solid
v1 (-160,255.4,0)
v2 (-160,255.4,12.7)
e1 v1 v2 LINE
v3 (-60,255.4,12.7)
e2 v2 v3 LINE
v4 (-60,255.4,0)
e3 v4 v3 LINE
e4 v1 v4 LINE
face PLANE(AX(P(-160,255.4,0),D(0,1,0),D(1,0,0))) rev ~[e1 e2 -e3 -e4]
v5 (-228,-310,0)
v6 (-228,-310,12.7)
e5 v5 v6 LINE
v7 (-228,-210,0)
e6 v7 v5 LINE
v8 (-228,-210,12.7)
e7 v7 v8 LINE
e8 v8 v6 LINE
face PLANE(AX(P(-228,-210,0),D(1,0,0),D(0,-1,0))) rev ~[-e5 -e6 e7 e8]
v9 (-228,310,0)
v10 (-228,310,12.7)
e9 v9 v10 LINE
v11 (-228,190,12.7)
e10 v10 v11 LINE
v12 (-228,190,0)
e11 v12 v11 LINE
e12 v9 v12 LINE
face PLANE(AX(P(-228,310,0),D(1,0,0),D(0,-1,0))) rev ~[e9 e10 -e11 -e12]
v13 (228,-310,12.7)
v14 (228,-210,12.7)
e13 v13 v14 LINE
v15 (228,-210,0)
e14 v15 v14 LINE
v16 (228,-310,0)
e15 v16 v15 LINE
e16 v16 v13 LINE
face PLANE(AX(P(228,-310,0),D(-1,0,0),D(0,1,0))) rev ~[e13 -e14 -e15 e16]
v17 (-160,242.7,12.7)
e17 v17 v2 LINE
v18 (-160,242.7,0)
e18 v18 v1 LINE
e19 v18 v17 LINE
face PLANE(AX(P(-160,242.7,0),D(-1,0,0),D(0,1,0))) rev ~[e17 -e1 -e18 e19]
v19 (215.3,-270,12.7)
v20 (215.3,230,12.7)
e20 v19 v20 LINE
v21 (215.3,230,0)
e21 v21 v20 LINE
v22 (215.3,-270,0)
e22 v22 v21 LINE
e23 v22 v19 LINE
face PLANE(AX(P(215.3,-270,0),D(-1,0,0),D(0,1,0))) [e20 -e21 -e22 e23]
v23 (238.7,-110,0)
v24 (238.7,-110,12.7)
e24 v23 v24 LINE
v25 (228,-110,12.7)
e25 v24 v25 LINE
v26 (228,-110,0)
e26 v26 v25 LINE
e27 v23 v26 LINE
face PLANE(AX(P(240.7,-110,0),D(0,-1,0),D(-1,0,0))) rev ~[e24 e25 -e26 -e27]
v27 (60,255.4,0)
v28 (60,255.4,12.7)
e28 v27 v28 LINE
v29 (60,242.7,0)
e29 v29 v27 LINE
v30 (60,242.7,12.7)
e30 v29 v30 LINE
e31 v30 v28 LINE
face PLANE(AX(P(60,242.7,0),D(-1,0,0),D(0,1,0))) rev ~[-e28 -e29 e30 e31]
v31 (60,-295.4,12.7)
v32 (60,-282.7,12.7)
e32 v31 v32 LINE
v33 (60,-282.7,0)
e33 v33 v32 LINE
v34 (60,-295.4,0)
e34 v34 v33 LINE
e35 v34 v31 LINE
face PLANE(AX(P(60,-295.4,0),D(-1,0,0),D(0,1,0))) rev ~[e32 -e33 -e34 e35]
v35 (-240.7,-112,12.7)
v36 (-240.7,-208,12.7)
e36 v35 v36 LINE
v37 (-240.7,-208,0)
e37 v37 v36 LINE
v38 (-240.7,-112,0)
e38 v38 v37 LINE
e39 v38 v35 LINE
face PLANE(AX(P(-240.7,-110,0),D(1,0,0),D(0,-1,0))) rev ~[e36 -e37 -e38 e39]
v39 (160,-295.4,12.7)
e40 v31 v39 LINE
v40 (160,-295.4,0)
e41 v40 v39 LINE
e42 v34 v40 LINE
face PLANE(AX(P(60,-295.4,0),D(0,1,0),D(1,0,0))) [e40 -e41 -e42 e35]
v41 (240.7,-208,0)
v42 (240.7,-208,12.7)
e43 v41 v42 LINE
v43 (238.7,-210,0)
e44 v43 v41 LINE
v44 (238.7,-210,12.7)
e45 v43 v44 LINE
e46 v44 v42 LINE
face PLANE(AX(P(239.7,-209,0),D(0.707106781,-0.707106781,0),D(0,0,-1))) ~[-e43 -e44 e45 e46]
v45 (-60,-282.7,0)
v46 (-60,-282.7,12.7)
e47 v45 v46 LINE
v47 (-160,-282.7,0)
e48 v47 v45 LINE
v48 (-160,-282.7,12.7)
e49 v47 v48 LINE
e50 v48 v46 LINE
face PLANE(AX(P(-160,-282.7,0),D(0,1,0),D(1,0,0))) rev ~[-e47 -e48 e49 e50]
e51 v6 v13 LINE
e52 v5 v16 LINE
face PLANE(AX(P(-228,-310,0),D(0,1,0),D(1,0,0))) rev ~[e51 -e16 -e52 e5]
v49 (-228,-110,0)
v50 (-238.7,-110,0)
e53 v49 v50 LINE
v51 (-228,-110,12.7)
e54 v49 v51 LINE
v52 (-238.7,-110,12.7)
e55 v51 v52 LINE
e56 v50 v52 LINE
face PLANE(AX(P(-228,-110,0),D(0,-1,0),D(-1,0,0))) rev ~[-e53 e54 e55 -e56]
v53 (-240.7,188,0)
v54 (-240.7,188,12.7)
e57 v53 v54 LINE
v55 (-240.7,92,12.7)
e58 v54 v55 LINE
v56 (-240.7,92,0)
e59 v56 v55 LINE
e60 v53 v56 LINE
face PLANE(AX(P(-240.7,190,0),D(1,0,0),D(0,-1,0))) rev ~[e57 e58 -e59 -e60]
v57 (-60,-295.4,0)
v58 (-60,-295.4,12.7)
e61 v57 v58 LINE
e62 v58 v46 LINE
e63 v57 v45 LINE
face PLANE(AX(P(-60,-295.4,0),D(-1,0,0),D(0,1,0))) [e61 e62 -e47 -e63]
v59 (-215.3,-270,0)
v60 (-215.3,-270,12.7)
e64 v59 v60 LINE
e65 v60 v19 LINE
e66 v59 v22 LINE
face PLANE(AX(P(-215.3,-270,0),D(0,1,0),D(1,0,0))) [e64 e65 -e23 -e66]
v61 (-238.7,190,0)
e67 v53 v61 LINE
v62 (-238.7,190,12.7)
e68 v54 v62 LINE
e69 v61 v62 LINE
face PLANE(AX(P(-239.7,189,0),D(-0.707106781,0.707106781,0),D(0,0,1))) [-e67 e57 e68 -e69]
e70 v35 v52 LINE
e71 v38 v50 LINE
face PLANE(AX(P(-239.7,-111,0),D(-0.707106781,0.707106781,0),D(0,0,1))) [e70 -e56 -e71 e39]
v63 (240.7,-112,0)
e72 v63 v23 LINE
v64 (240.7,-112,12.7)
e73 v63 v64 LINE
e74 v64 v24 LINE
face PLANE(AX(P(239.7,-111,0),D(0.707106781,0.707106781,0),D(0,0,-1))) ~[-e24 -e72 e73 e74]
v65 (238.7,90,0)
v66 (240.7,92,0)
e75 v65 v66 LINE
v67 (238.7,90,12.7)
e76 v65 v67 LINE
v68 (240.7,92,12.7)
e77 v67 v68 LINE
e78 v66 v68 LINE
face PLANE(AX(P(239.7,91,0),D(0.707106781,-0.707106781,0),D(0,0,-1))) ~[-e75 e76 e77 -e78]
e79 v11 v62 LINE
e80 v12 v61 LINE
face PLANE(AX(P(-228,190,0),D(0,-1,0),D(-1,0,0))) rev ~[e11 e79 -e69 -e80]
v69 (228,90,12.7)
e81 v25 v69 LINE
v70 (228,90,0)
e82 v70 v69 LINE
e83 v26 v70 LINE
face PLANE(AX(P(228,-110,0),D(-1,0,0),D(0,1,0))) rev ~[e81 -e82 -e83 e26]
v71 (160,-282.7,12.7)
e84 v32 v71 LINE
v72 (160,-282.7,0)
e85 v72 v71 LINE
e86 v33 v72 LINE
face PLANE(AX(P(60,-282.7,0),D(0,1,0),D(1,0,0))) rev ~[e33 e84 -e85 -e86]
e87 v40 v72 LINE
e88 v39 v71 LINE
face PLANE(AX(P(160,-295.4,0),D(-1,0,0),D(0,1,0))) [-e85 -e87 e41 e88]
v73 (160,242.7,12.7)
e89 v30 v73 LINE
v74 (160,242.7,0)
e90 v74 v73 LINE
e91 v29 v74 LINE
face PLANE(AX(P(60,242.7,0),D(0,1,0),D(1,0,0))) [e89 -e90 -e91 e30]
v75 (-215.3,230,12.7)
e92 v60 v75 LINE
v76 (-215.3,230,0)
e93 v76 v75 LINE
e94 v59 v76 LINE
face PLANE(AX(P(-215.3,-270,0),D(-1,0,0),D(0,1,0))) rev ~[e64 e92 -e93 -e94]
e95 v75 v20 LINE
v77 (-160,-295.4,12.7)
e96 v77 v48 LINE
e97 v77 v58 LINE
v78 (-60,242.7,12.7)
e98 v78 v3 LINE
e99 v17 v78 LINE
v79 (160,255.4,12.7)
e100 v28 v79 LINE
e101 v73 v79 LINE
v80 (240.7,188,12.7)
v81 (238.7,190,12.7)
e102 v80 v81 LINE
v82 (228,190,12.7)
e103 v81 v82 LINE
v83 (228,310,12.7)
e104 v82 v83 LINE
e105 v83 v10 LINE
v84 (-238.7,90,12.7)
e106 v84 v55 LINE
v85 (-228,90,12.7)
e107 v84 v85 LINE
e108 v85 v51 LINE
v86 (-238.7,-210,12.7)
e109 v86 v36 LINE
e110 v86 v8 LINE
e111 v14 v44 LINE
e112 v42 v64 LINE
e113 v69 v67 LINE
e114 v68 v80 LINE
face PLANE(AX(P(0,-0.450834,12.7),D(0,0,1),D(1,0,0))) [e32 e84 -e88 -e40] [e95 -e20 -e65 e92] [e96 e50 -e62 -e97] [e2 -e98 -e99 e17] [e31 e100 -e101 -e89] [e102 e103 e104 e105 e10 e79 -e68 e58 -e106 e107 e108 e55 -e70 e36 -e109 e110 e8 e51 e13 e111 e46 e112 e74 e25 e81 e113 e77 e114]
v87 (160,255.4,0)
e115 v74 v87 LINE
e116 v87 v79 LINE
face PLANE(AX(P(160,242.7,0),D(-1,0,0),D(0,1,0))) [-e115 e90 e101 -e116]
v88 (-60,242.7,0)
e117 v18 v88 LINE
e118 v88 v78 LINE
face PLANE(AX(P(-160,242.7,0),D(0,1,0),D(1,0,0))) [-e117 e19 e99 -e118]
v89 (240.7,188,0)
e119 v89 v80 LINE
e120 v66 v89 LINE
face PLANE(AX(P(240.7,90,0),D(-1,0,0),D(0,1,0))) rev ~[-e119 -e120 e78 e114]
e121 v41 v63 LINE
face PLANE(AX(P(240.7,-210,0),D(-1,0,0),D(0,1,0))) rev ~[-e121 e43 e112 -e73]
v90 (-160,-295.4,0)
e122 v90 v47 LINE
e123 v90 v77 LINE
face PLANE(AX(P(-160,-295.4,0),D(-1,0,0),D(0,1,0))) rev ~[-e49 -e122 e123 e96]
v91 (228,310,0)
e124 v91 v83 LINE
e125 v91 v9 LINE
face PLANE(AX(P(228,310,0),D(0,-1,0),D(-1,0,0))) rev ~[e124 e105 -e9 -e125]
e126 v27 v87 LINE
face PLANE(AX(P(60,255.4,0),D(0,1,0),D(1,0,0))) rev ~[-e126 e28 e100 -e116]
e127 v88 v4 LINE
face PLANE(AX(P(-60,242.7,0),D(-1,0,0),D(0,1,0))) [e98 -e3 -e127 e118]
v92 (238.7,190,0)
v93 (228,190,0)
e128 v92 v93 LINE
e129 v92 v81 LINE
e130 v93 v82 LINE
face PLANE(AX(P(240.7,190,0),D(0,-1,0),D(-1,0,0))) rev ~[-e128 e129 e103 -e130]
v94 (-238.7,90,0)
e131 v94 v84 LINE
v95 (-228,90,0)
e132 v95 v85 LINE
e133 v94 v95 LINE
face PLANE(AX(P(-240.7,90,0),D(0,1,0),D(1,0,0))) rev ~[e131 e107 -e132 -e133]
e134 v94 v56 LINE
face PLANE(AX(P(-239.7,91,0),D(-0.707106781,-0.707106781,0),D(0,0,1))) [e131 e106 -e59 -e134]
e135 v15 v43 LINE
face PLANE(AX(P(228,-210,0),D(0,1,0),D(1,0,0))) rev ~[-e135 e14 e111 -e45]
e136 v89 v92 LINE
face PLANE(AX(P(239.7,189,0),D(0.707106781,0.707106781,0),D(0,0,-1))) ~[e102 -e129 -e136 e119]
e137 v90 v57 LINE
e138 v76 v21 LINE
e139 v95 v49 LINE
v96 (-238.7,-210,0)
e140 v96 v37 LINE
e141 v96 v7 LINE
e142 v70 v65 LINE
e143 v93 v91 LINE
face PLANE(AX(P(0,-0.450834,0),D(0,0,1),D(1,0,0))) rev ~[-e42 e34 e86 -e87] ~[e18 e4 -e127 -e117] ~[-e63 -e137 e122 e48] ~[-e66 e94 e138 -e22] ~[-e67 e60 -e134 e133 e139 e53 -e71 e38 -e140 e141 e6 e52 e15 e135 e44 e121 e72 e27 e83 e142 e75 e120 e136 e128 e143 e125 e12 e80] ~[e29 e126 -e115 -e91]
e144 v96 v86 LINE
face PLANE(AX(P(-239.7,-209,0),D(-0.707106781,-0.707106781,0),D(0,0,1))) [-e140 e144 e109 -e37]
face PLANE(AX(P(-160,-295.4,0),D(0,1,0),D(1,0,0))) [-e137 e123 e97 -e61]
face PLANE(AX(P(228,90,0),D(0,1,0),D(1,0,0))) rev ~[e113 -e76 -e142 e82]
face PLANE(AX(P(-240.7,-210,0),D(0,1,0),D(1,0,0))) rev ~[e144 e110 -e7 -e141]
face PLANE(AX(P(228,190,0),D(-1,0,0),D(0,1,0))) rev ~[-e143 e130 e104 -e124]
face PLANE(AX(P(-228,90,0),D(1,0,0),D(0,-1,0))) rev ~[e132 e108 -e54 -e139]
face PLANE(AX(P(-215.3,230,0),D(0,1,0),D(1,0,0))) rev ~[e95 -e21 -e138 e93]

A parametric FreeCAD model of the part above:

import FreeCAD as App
import Part
import Sketcher

V = App.Vector


def edges_at(feature, points):
    """Names of the edges that pass closest to the given points."""
    edges = feature.Shape.Edges
    near = lambda p: min(range(len(edges)), key=lambda i: edges[i].distToShape(Part.Vertex(*p))[0])
    return sorted({f"Edge{near(p) + 1}" for p in points})


def add_polygon(sketch, points):
    """Adds a closed chain of lines whose ends are joined by coincident constraints."""
    first, n = sketch.GeometryCount, len(points)
    for a, b in zip(points, points[1:] + points[:1]):
        sketch.addGeometry(Part.LineSegment(App.Vector(*a, 0), App.Vector(*b, 0)), False)
    for i in range(n):
        sketch.addConstraint(Sketcher.Constraint("Coincident", first + i, 2, first + (i + 1) % n, 1))

doc = App.newDocument("Part")
body = doc.addObject("PartDesign::Body", "Body")

sketch1 = body.newObject("Sketcher::SketchObject", "Sketch")
sketch1.AttachmentSupport = (doc.getObject("XY_Plane"), [""])
sketch1.MapMode = "FlatFace"
add_polygon(sketch1, [(-228, -310), (228, -310), (228, -210), (241, -210), (241, -110), (228, -110), (228, 90), (241, 90), (241, 190), (228, 190), (228, 310), (-228, 310), (-228, 190), (-241, 190), (-241, 90), (-228, 90), (-228, -110), (-241, -110), (-241, -210), (-228, -210)])
add_polygon(sketch1, [(-60, -295), (-160, -295), (-160, -283), (-60, -283)])
add_polygon(sketch1, [(160, -295), (60, -295), (60, -283), (160, -283)])
add_polygon(sketch1, [(215, -270), (-215, -270), (-215, 230), (215, 230)])
add_polygon(sketch1, [(-60, 243), (-160, 243), (-160, 255), (-60, 255)])
add_polygon(sketch1, [(160, 243), (60, 243), (60, 255), (160, 255)])
sketch1.addConstraint([
    Sketcher.Constraint("Horizontal", 0),
    Sketcher.Constraint("Vertical", 1),
    Sketcher.Constraint("Horizontal", 2),
    Sketcher.Constraint("Vertical", 3),
    Sketcher.Constraint("Horizontal", 4),
    Sketcher.Constraint("Vertical", 5),
    Sketcher.Constraint("Horizontal", 6),
    Sketcher.Constraint("Vertical", 7),
    Sketcher.Constraint("Horizontal", 8),
    Sketcher.Constraint("Vertical", 9),
    Sketcher.Constraint("Horizontal", 10),
    Sketcher.Constraint("Vertical", 11),
    Sketcher.Constraint("Horizontal", 12),
    Sketcher.Constraint("Vertical", 13),
    Sketcher.Constraint("Horizontal", 14),
    Sketcher.Constraint("Vertical", 15),
    Sketcher.Constraint("Horizontal", 16),
    Sketcher.Constraint("Vertical", 17),
    Sketcher.Constraint("Horizontal", 18),
    Sketcher.Constraint("Vertical", 19),
    Sketcher.Constraint("Horizontal", 20),
    Sketcher.Constraint("Vertical", 21),
    Sketcher.Constraint("Horizontal", 22),
    Sketcher.Constraint("Vertical", 23),
    Sketcher.Constraint("Horizontal", 24),
    Sketcher.Constraint("Vertical", 25),
    Sketcher.Constraint("Horizontal", 26),
    Sketcher.Constraint("Vertical", 27),
    Sketcher.Constraint("Horizontal", 28),
    Sketcher.Constraint("Vertical", 29),
    Sketcher.Constraint("Horizontal", 30),
    Sketcher.Constraint("Vertical", 31),
    Sketcher.Constraint("Horizontal", 32),
    Sketcher.Constraint("Vertical", 33),
    Sketcher.Constraint("Horizontal", 34),
    Sketcher.Constraint("Vertical", 35),
    Sketcher.Constraint("Horizontal", 36),
    Sketcher.Constraint("Vertical", 37),
    Sketcher.Constraint("Horizontal", 38),
    Sketcher.Constraint("Vertical", 39),
    Sketcher.Constraint("Symmetric", 0, 2, 10, 2, -1, 1),
    Sketcher.Constraint("Symmetric", 8, 2, 11, 2, -2),
    Sketcher.Constraint("Symmetric", 6, 2, 13, 2, -2),
    Sketcher.Constraint("Symmetric", 4, 2, 15, 2, -2),
    Sketcher.Constraint("Symmetric", 2, 2, 17, 2, -2),
    Sketcher.Constraint("Symmetric", 23, 2, 24, 2, -2),
    Sketcher.Constraint("Symmetric", 21, 2, 26, 2, -2),
    Sketcher.Constraint("Symmetric", 35, 2, 36, 2, -2),
    Sketcher.Constraint("Symmetric", 33, 2, 38, 2, -2),
    Sketcher.Constraint("Vertical", 1, 2, 4, 2),
    Sketcher.Constraint("Vertical", 3, 2, 6, 2),
    Sketcher.Constraint("Vertical", 15, 2, 18, 2),
    Sketcher.Constraint("Vertical", 21, 2, 32, 2),
    Sketcher.Constraint("Vertical", 23, 2, 34, 2),
    Sketcher.Constraint("Equal", 38, 1),
    Sketcher.Constraint("Equal", 1, 3),
    Sketcher.Constraint("Equal", 3, 7),
    Sketcher.Constraint("Equal", 18, 21),
    Sketcher.Constraint("Equal", 27, 33),
    Sketcher.Constraint("DistanceX", 0, 1, 0, 2, 456.0),
    Sketcher.Constraint("DistanceX", 20, 2, 20, 1, 100.0),
    Sketcher.Constraint("DistanceY", 5, 1, 5, 2, 200.0),
    Sketcher.Constraint("DistanceY", 9, 1, 9, 2, 120.0),
    Sketcher.Constraint("DistanceY", 29, 1, 29, 2, 500.0),
    Sketcher.Constraint("DistanceX", 2, 1, 2, 2, 12.7),
    Sketcher.Constraint("DistanceX", 28, 2, 28, 1, 430.6),
    Sketcher.Constraint("DistanceX", 20, 2, -1, 1, 160.0),
    Sketcher.Constraint("DistanceY", 28, 2, -1, 1, 270.0),
    Sketcher.Constraint("DistanceY", 20, 2, -1, 1, 295.4),
    Sketcher.Constraint("DistanceX", 28, 2, -1, 1, 215.3),
    Sketcher.Constraint("DistanceY", -1, 1, 32, 2, 242.7),
])
pad1 = body.newObject("PartDesign::Pad", "Pad")
pad1.Profile = sketch1
pad1.Length = 12.7
doc.recompute()

chamfer = body.newObject("PartDesign::Chamfer", "Chamfer")
chamfer.Base = (pad1, edges_at(pad1, [
    (240.7, -110, 6.35),
    (240.7, -210, 6.35),
    (240.7, 190, 6.35),
    (240.7, 90, 6.35),
    (-240.7, 190, 6.35),
    (-240.7, 90, 6.35),
    (-240.7, -110, 6.35),
    (-240.7, -210, 6.35),
]))
chamfer.Size = 2

doc.recompute()
